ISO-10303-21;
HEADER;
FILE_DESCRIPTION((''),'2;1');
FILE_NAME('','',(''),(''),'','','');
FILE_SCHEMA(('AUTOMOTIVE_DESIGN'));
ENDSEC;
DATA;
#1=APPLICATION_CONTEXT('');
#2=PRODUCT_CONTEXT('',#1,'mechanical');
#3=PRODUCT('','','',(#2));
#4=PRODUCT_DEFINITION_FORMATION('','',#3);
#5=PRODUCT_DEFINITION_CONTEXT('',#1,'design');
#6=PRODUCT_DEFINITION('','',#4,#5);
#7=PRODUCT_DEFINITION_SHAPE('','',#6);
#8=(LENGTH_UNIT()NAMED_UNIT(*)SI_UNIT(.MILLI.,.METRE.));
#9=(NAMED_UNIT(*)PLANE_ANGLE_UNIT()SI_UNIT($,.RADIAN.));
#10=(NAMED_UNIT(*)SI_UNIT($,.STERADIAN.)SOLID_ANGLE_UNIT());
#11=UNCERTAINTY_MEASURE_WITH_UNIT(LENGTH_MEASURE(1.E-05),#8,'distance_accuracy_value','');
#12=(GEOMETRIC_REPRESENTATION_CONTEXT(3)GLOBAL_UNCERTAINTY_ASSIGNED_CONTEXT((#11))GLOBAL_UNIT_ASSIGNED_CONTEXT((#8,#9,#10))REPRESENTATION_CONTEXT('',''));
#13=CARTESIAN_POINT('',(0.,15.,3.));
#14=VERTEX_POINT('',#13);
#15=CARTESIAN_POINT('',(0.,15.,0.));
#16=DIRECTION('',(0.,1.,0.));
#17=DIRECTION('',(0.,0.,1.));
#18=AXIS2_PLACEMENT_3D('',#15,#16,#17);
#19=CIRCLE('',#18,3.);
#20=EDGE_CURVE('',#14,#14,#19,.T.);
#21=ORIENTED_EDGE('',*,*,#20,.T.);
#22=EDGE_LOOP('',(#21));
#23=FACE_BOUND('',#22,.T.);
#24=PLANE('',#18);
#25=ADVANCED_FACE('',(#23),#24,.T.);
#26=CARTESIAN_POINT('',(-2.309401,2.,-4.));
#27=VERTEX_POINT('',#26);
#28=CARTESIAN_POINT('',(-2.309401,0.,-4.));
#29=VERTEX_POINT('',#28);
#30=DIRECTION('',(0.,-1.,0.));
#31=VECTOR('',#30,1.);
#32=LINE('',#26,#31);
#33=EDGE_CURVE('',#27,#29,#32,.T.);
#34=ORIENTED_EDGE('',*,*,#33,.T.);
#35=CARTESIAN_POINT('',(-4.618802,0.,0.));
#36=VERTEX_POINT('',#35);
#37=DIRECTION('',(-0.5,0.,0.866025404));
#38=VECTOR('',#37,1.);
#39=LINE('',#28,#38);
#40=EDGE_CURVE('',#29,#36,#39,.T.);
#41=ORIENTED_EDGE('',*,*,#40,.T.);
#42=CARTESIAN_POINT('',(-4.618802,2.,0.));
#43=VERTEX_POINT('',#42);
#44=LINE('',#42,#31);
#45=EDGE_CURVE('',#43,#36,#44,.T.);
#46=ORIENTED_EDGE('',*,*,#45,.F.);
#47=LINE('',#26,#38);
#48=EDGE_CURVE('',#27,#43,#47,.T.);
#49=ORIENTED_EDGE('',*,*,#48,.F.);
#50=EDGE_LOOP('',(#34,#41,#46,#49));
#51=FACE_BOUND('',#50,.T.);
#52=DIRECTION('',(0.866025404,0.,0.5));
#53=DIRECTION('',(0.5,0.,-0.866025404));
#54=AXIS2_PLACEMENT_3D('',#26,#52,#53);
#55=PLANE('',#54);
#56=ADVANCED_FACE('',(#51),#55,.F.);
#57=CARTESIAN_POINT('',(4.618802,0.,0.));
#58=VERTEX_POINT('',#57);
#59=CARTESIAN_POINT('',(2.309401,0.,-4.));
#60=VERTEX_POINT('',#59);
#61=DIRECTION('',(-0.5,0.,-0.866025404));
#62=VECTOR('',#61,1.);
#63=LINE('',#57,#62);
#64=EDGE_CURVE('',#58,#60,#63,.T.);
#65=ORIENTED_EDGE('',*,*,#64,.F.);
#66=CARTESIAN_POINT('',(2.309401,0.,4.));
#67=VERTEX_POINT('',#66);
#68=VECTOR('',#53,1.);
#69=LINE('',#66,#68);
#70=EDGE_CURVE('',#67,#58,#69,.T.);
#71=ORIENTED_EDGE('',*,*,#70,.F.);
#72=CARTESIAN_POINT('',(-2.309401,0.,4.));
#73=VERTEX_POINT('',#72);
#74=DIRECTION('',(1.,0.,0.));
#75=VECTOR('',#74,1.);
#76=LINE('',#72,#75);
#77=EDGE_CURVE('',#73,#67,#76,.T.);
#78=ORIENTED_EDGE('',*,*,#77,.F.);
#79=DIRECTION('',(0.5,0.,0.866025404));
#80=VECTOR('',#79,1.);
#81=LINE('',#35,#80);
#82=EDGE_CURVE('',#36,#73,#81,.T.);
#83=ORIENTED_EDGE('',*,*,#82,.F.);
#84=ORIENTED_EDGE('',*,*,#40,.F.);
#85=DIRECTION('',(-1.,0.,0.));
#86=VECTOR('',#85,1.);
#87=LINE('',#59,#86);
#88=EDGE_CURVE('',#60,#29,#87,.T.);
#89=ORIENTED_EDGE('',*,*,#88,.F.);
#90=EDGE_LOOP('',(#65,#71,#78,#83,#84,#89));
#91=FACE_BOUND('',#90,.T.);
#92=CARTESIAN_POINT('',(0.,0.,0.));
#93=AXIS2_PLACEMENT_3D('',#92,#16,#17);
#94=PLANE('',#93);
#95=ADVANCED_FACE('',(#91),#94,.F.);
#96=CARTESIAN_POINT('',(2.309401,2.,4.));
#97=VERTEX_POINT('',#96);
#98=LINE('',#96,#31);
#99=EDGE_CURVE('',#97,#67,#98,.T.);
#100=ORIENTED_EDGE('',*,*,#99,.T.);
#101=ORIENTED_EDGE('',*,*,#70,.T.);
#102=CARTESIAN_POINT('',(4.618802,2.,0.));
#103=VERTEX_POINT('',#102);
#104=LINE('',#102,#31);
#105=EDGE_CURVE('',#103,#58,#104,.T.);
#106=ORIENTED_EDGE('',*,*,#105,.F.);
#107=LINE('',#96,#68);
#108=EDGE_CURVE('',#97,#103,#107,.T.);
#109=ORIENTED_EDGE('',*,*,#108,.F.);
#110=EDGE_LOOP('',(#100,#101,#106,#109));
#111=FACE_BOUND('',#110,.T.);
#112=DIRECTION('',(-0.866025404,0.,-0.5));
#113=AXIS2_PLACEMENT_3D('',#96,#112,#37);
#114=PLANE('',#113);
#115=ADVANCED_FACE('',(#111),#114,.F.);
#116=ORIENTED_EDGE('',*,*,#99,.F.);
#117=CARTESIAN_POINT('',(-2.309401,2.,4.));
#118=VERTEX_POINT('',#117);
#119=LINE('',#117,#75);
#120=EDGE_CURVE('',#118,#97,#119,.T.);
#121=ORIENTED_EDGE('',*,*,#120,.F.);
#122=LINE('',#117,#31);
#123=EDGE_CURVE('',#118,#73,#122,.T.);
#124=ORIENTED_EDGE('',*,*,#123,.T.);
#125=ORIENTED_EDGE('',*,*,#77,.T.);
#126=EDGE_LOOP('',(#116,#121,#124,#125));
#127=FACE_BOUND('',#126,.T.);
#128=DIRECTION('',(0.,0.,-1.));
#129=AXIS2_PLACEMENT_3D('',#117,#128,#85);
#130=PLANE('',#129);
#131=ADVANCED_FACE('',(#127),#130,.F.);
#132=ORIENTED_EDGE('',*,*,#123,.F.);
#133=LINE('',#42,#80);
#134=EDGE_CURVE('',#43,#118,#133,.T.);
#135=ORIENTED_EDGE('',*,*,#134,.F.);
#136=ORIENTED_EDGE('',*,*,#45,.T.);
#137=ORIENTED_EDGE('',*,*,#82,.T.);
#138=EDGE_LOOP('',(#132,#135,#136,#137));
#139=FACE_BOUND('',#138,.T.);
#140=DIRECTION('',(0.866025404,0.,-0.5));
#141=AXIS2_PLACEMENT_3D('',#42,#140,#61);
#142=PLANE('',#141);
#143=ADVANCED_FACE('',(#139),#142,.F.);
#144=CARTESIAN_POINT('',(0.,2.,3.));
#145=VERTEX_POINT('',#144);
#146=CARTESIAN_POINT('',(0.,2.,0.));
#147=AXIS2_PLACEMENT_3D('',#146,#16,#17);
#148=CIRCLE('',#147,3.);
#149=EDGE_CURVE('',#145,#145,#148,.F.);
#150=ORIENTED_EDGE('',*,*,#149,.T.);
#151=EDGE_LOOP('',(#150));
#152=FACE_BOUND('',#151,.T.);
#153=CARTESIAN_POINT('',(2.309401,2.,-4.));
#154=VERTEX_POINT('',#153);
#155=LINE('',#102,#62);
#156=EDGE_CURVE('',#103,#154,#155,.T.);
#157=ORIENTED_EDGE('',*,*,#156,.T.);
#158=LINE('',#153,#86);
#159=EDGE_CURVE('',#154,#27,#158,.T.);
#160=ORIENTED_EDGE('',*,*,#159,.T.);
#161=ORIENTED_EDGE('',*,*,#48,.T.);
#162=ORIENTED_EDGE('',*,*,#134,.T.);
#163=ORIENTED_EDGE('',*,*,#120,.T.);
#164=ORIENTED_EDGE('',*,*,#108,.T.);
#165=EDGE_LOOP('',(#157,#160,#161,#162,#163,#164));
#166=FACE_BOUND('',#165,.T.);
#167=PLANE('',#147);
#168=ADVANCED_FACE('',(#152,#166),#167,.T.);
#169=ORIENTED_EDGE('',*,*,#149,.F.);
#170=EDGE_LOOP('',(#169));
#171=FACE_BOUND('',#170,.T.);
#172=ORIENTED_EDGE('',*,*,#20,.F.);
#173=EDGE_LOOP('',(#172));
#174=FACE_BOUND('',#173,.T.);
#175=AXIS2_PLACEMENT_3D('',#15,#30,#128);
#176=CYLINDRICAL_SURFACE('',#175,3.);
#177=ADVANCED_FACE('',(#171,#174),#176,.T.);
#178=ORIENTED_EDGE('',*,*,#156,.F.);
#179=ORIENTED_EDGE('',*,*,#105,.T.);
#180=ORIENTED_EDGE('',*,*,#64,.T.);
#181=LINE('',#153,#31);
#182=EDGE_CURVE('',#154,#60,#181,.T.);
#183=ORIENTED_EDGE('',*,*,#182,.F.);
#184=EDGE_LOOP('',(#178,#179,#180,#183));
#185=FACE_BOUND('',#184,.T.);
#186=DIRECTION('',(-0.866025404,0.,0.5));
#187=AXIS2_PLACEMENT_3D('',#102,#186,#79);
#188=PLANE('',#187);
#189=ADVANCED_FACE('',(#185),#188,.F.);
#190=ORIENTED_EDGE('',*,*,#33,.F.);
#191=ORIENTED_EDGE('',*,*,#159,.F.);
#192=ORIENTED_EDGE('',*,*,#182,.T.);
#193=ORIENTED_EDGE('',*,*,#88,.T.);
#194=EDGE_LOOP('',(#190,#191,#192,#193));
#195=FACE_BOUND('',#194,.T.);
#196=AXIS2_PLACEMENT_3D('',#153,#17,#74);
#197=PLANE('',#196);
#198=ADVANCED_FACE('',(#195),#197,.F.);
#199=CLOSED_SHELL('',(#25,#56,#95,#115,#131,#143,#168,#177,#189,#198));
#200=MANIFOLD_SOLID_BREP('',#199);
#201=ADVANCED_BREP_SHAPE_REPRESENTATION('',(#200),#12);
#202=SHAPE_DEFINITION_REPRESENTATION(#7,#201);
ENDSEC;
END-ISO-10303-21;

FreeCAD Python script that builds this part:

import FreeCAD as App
import Part
import Sketcher
Q = App.Units.Quantity


def add_polygon(sketch, points):
    """Adds a closed chain of lines whose ends are joined by coincident constraints."""
    first, n = sketch.GeometryCount, len(points)
    for a, b in zip(points, points[1:] + points[:1]):
        sketch.addGeometry(Part.LineSegment(App.Vector(*a, 0), App.Vector(*b, 0)), False)
    for i in range(n):
        sketch.addConstraint(Sketcher.Constraint("Coincident", first + i, 2, first + (i + 1) % n, 1))

doc = App.newDocument("Part")
body = doc.addObject("PartDesign::Body", "Body")

# Sketch on XZ plane
sketch1 = body.newObject("Sketcher::SketchObject", "Sketch")
sketch1.AttachmentSupport = (doc.getObject("XZ_Plane"), [""])
sketch1.MapMode = "FlatFace"
add_polygon(sketch1, [(4.6, 0), (2.3, -4), (-2.3, -4), (-4.6, 0), (-2.3, 4), (2.3, 4)])  # lines 0-5
sketch1.addConstraint([
    Sketcher.Constraint("Horizontal", 1),
    Sketcher.Constraint("Horizontal", 4),
    Sketcher.Constraint("Symmetric", 0, 2, 3, 2, -1, 1),
    Sketcher.Constraint("Symmetric", 2, 2, 5, 2, -1, 1),
    Sketcher.Constraint("PointOnObject", 2, 2, -1),
    Sketcher.Constraint("Parallel", 2, 5),
    Sketcher.Constraint("Vertical", 1, 2, 3, 2),
    Sketcher.Constraint("Angle", 0, Q("-120 deg")),
    Sketcher.Constraint("DistanceY", 0, 2, -1, 1, 4.0),
    Sketcher.Constraint("DistanceX", -1, 1, 0, 2, 2.309401),
])
pad1 = body.newObject("PartDesign::Pad", "Pad")
pad1.Profile = sketch1
pad1.Length = 2
pad1.Reversed = True

# Sketch on XZ plane
sketch2 = body.newObject("Sketcher::SketchObject", "Sketch001")
sketch2.AttachmentSupport = (doc.getObject("XZ_Plane"), [""])
sketch2.MapMode = "FlatFace"
sketch2.addGeometry(Part.Circle(App.Vector(0, 0, 0), App.Vector(0, 0, 1), 3), False)
sketch2.addConstraint([
    Sketcher.Constraint("Coincident", 0, 3, -1, 1),
    Sketcher.Constraint("Diameter", 0, 6.0),
])
pad2 = body.newObject("PartDesign::Pad", "Pad001")
pad2.Profile = sketch2
pad2.Length = 15
pad2.Reversed = True

doc.recompute()
